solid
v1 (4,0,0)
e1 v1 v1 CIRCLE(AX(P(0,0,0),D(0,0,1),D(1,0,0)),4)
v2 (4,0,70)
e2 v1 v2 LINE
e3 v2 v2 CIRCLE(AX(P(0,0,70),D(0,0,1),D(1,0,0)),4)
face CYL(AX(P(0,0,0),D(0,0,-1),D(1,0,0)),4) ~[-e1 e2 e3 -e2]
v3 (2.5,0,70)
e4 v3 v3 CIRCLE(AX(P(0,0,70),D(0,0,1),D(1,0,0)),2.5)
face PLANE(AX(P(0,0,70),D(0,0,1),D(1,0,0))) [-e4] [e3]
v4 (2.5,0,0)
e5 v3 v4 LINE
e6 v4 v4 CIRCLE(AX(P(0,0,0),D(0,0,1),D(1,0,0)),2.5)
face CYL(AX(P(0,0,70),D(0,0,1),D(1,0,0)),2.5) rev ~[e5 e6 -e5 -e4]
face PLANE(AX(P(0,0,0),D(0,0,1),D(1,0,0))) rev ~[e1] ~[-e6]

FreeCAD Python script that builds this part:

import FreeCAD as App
import Part
import Sketcher

doc = App.newDocument("Part")
body = doc.addObject("PartDesign::Body", "Body")

# Sketch on XY plane
sketch1 = body.newObject("Sketcher::SketchObject", "Sketch")
sketch1.AttachmentSupport = (doc.getObject("XY_Plane"), [""])
sketch1.MapMode = "FlatFace"
sketch1.addGeometry(Part.Circle(App.Vector(0, 0, 0), App.Vector(0, 0, 1), 4), False)
sketch1.addConstraint(Sketcher.Constraint("Coincident", 0, 3, -1, 1))
sketch1.addConstraint(Sketcher.Constraint("Diameter", 0, 8.0))
pad1 = body.newObject("PartDesign::Pad", "Pad")
pad1.Profile = sketch1
pad1.Length = 70

# Sketch on XY plane
sketch2 = body.newObject("Sketcher::SketchObject", "Sketch001")
sketch2.AttachmentSupport = (doc.getObject("XY_Plane"), [""])
sketch2.MapMode = "FlatFace"
sketch2.AttachmentOffset = App.Placement(App.Vector(0, 0, 70), App.Rotation())
sketch2.addGeometry(Part.Circle(App.Vector(0, 0, 0), App.Vector(0, 0, 1), 2.5), False)
sketch2.addConstraint(Sketcher.Constraint("Coincident", 0, 3, -1, 1))
sketch2.addConstraint(Sketcher.Constraint("Diameter", 0, 5.0))
pocket1 = body.newObject("PartDesign::Pocket", "Pocket")
pocket1.Profile = sketch2
pocket1.Type = "ThroughAll"

doc.recompute()
